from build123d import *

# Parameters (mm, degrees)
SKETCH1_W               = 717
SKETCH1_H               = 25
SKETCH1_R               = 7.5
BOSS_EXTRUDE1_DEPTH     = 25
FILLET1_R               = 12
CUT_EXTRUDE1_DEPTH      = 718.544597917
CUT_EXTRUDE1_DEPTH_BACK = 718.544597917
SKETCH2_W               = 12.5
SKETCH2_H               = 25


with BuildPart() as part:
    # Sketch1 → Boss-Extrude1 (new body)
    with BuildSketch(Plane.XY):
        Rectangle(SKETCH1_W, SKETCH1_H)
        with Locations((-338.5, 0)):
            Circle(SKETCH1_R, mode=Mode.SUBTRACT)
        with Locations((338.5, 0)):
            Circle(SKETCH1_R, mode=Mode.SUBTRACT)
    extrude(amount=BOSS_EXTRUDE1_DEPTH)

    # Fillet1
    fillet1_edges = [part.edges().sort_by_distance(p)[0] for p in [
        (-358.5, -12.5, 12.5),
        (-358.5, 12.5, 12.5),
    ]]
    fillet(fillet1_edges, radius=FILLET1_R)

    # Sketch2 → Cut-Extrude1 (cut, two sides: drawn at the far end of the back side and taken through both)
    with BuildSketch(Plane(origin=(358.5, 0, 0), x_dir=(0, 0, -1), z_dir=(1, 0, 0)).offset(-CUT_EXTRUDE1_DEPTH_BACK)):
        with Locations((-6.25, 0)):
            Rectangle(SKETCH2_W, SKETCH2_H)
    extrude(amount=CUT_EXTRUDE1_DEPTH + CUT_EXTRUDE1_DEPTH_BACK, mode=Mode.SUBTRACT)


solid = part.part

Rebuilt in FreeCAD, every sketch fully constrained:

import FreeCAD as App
import Part
import Sketcher


def edges_at(feature, points):
    """Names of the edges that pass closest to the given points."""
    edges = feature.Shape.Edges
    near = lambda p: min(range(len(edges)), key=lambda i: edges[i].distToShape(Part.Vertex(*p))[0])
    return sorted({f"Edge{near(p) + 1}" for p in points})

doc = App.newDocument("Part")
params = doc.addObject("Spreadsheet::Sheet", "Params")
for row, (alias, value) in enumerate([
    ("sketch1_diameter", "15 mm"),
    ("sketch1_width", "717 mm"),
    ("sketch1_height", "25 mm"),
    ("pad1_length", "25 mm"),
    ("fillet_radius", "12 mm"),
    ("sketch2_width", "25 mm"),
    ("sketch2_height", "12.5 mm"),
], start=1):
    params.set(f"A{row}", alias)
    params.set(f"B{row}", "=" + value)
    params.setAlias(f"B{row}", alias)

body = doc.addObject("PartDesign::Body", "Body")

sketch1 = doc.addObject("Sketcher::SketchObject", "Sketch")
body.addObject(sketch1)
sketch1.AttachmentSupport = (doc.XY_Plane, [""])
sketch1.MapMode = "FlatFace"
sketch1.addGeometry(Part.LineSegment(App.Vector(-358, 12, 0), App.Vector(-358, -12, 0)), False)
sketch1.addGeometry(Part.LineSegment(App.Vector(-358, -12, 0), App.Vector(358, -12, 0)), False)
sketch1.addGeometry(Part.LineSegment(App.Vector(358, -12, 0), App.Vector(358, 12, 0)), False)
sketch1.addGeometry(Part.LineSegment(App.Vector(358, 12, 0), App.Vector(-358, 12, 0)), False)
sketch1.addGeometry(Part.Circle(App.Vector(-338, 0, 0), App.Vector(0, 0, 1), 8), False)
sketch1.addGeometry(Part.Circle(App.Vector(338, 0, 0), App.Vector(0, 0, 1), 8), False)
sketch1.addConstraint(Sketcher.Constraint("Coincident", 0, 2, 1, 1))
sketch1.addConstraint(Sketcher.Constraint("Coincident", 1, 2, 2, 1))
sketch1.addConstraint(Sketcher.Constraint("Coincident", 2, 2, 3, 1))
sketch1.addConstraint(Sketcher.Constraint("Coincident", 3, 2, 0, 1))
sketch1.addConstraint(Sketcher.Constraint("Vertical", 0))
sketch1.addConstraint(Sketcher.Constraint("Horizontal", 1))
sketch1.addConstraint(Sketcher.Constraint("Vertical", 2))
sketch1.addConstraint(Sketcher.Constraint("Horizontal", 3))
sketch1.addConstraint(Sketcher.Constraint("Equal", 4, 5))
sketch1.addConstraint(Sketcher.Constraint("Symmetric", 4, 3, 5, 3, -1, 1))
sketch1.addConstraint(Sketcher.Constraint("Symmetric", 0, 2, 2, 2, -1, 1))
sketch1.addConstraint(Sketcher.Constraint("PointOnObject", 4, 3, -1))
sketch1.addConstraint(Sketcher.Constraint("Diameter", 4, 15.0))
sketch1.addConstraint(Sketcher.Constraint("DistanceX", 1, 1, 1, 2, 717.0))
sketch1.addConstraint(Sketcher.Constraint("DistanceY", 0, 2, 0, 1, 25.0))
sketch1.addConstraint(Sketcher.Constraint("DistanceX", 4, 3, 5, 3, 677.0))
sketch1.setExpression("Constraints[12]", "Params.sketch1_diameter")
sketch1.setExpression("Constraints[13]", "Params.sketch1_width")
sketch1.setExpression("Constraints[14]", "Params.sketch1_height")
pad1 = doc.addObject("PartDesign::Pad", "Pad")
body.addObject(pad1)
pad1.Profile = sketch1
pad1.setExpression("Length", "Params.pad1_length")
doc.recompute()

fillet = doc.addObject("PartDesign::Fillet", "Fillet")
body.addObject(fillet)
fillet.Base = (pad1, edges_at(pad1, [(-358.5, -12.5, 12.5), (-358.5, 12.5, 12.5)]))
fillet.setExpression("Radius", "Params.fillet_radius")

sketch2 = doc.addObject("Sketcher::SketchObject", "Sketch001")
body.addObject(sketch2)
sketch2.AttachmentSupport = (doc.YZ_Plane, [""])
sketch2.MapMode = "FlatFace"
sketch2.AttachmentOffset = App.Placement(App.Vector(0, 0, 358.5), App.Rotation())
sketch2.addGeometry(Part.LineSegment(App.Vector(12, 12, 0), App.Vector(-12, 12, 0)), False)
sketch2.addGeometry(Part.LineSegment(App.Vector(-12, 12, 0), App.Vector(-12, 0, 0)), False)
sketch2.addGeometry(Part.LineSegment(App.Vector(-12, 0, 0), App.Vector(12, 0, 0)), False)
sketch2.addGeometry(Part.LineSegment(App.Vector(12, 0, 0), App.Vector(12, 12, 0)), False)
sketch2.addConstraint(Sketcher.Constraint("Coincident", 0, 2, 1, 1))
sketch2.addConstraint(Sketcher.Constraint("Coincident", 1, 2, 2, 1))
sketch2.addConstraint(Sketcher.Constraint("Coincident", 2, 2, 3, 1))
sketch2.addConstraint(Sketcher.Constraint("Coincident", 3, 2, 0, 1))
sketch2.addConstraint(Sketcher.Constraint("Horizontal", 0))
sketch2.addConstraint(Sketcher.Constraint("Vertical", 1))
sketch2.addConstraint(Sketcher.Constraint("Horizontal", 2))
sketch2.addConstraint(Sketcher.Constraint("Vertical", 3))
sketch2.addConstraint(Sketcher.Constraint("Symmetric", 1, 2, 2, 2, -1, 1))
sketch2.addConstraint(Sketcher.Constraint("DistanceX", 0, 2, 0, 1, 25.0))
sketch2.addConstraint(Sketcher.Constraint("DistanceY", 1, 2, 1, 1, 12.5))
sketch2.setExpression("Constraints[9]", "Params.sketch2_width")
sketch2.setExpression("Constraints[10]", "Params.sketch2_height")
pocket1 = doc.addObject("PartDesign::Pocket", "Pocket")
body.addObject(pocket1)
pocket1.Profile = sketch2
pocket1.Type = "ThroughAll"
pocket1.Midplane = True

doc.recompute()
